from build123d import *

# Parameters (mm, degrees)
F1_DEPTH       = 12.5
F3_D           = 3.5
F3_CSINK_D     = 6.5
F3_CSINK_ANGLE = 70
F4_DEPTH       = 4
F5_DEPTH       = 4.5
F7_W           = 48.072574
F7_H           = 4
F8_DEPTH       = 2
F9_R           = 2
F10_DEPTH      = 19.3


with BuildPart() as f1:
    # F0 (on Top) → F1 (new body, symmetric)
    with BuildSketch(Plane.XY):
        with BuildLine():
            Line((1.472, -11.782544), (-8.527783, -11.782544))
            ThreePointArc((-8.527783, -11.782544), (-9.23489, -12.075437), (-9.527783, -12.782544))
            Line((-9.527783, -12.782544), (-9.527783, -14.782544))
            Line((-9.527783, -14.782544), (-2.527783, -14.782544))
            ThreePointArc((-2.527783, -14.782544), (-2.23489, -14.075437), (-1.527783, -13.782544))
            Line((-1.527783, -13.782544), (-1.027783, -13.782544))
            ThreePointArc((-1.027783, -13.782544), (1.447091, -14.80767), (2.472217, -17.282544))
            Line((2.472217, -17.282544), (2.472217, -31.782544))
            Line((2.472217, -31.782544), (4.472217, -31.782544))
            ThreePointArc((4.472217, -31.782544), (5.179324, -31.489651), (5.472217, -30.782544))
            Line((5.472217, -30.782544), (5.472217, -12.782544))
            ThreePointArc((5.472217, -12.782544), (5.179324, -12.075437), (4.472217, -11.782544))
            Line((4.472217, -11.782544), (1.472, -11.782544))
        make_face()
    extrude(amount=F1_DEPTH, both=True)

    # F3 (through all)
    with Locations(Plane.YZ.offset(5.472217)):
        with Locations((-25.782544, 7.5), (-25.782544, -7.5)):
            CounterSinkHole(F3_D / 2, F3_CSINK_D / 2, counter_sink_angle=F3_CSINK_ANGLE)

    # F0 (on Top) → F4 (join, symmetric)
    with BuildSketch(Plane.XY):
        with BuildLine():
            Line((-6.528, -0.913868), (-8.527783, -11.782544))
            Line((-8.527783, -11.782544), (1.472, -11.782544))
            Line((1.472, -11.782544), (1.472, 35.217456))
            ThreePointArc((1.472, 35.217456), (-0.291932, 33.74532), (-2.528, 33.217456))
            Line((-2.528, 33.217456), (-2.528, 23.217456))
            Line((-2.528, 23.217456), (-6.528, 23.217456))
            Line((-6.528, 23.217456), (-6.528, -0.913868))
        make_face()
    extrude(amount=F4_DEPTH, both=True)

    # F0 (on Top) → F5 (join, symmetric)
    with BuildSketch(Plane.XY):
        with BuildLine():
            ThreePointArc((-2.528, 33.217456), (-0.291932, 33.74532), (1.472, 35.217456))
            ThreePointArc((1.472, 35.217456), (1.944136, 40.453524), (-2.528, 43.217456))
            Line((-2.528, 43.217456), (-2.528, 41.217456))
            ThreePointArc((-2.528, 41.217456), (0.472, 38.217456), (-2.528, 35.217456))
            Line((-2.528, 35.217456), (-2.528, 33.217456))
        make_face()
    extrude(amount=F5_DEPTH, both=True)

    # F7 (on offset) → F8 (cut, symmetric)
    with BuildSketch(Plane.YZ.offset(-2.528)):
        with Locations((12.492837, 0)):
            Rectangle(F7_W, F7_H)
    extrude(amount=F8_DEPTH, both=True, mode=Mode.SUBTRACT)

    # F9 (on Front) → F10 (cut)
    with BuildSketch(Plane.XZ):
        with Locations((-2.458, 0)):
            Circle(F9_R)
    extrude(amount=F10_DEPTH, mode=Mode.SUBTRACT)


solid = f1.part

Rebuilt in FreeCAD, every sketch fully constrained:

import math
import FreeCAD as App
import Part
import Sketcher
Q = App.Units.Quantity


def add_polygon(sketch, points):
    """Adds a closed chain of lines whose ends are joined by coincident constraints."""
    first, n = sketch.GeometryCount, len(points)
    for a, b in zip(points, points[1:] + points[:1]):
        sketch.addGeometry(Part.LineSegment(App.Vector(*a, 0), App.Vector(*b, 0)), False)
    for i in range(n):
        sketch.addConstraint(Sketcher.Constraint("Coincident", first + i, 2, first + (i + 1) % n, 1))

doc = App.newDocument("Part")
params = doc.addObject("Spreadsheet::Sheet", "Params")
for row, (alias, value) in enumerate([
    ("sketch1_radius", "0.999999 mm"),
    ("sketch1_radius2", "3.499999 mm"),
    ("sketch1_width", "7 mm"),
    ("sketch1_width2", "2 mm"),
    ("sketch1_width3", "13 mm"),
    ("pad1_length", "25 mm"),
    ("sketch2_diameter", "3.5 mm"),
    ("hole_diameter", "3.5 mm"),
    ("hole_csink_diameter", "6.5 mm"),
    ("sketch3_radius", "5 mm"),
    ("sketch3_width", "4 mm"),
    ("sketch3_height", "47 mm"),
    ("sketch3_height2", "10 mm"),
    ("pad2_length", "8 mm"),
    ("sketch4_radius", "5 mm"),
    ("sketch4_radius2", "3 mm"),
    ("pad3_length", "9 mm"),
    ("sketch5_height", "4 mm"),
    ("pocket1_length", "4 mm"),
    ("sketch6_diameter", "4 mm"),
    ("pocket2_length", "19.3 mm"),
], start=1):
    params.set(f"A{row}", alias)
    params.set(f"B{row}", "=" + value)
    params.setAlias(f"B{row}", alias)

body = doc.addObject("PartDesign::Body", "Body")

# Sketch on XY plane
sketch1 = doc.addObject("Sketcher::SketchObject", "Sketch")
body.addObject(sketch1)
sketch1.AttachmentSupport = (doc.XY_Plane, [""])
sketch1.MapMode = "FlatFace"
sketch1.addGeometry([
    Part.ArcOfCircle(Part.Circle(App.Vector(-8.5, -12.8, 0), App.Vector(0, 0, 1), 1), math.radians(90), math.radians(180)),  # 0
    Part.LineSegment(App.Vector(-9.5, -12.8, 0), App.Vector(-9.5, -14.8, 0)),  # 1
    Part.LineSegment(App.Vector(-9.5, -14.8, 0), App.Vector(-2.5, -14.8, 0)),  # 2
    Part.ArcOfCircle(Part.Circle(App.Vector(-1.5, -14.8, 0), App.Vector(0, 0, 1), 1), math.radians(90), math.radians(180)),  # 3
    Part.LineSegment(App.Vector(-1.5, -13.8, 0), App.Vector(-1, -13.8, 0)),  # 4
    Part.ArcOfCircle(Part.Circle(App.Vector(-1, -17.3, 0), App.Vector(0, 0, 1), 3.5), math.radians(0), math.radians(90)),  # 5
    Part.LineSegment(App.Vector(2.5, -17.3, 0), App.Vector(2.5, -31.8, 0)),  # 6
    Part.LineSegment(App.Vector(2.5, -31.8, 0), App.Vector(4.5, -31.8, 0)),  # 7
    Part.ArcOfCircle(Part.Circle(App.Vector(4.5, -30.8, 0), App.Vector(0, 0, 1), 1), math.radians(-90), math.radians(0)),  # 8
    Part.LineSegment(App.Vector(5.5, -30.8, 0), App.Vector(5.5, -12.8, 0)),  # 9
    Part.ArcOfCircle(Part.Circle(App.Vector(4.5, -12.8, 0), App.Vector(0, 0, 1), 1), math.radians(0), math.radians(90)),  # 10
    Part.LineSegment(App.Vector(4.5, -11.8, 0), App.Vector(-8.5, -11.8, 0)),  # 11
], False)
sketch1.addConstraint([
    Sketcher.Constraint("Tangent", 0, 2, 1, 1),
    Sketcher.Constraint("Coincident", 1, 2, 2, 1),
    Sketcher.Constraint("Coincident", 2, 2, 3, 2),
    Sketcher.Constraint("Tangent", 3, 1, 4, 1),
    Sketcher.Constraint("Tangent", 4, 2, 5, 2),
    Sketcher.Constraint("Tangent", 5, 1, 6, 1),
    Sketcher.Constraint("Coincident", 6, 2, 7, 1),
    Sketcher.Constraint("Tangent", 7, 2, 8, 1),
    Sketcher.Constraint("Tangent", 8, 2, 9, 1),
    Sketcher.Constraint("Tangent", 9, 2, 10, 1),
    Sketcher.Constraint("Tangent", 10, 2, 11, 1),
    Sketcher.Constraint("Tangent", 11, 2, 0, 1),
    Sketcher.Constraint("Vertical", 1),
    Sketcher.Constraint("Horizontal", 2),
    Sketcher.Constraint("Horizontal", 4),
    Sketcher.Constraint("Vertical", 6),
    Sketcher.Constraint("Horizontal", 7),
    Sketcher.Constraint("Vertical", 9),
    Sketcher.Constraint("Horizontal", 11),
    Sketcher.Constraint("Equal", 0, 3),
    Sketcher.Constraint("Equal", 3, 8),
    Sketcher.Constraint("Equal", 8, 10),
    Sketcher.Constraint("Horizontal", 3, 3, 1, 2),
    Sketcher.Constraint("Equal", 7, 1),
    Sketcher.Constraint("Radius", 0, Q("0.999999 mm")),
    Sketcher.Constraint("Radius", 5, Q("3.499999 mm")),
    Sketcher.Constraint("DistanceX", 2, 1, 2, 2, Q("7 mm")),
    Sketcher.Constraint("DistanceX", 7, 1, 7, 2, Q("2 mm")),
    Sketcher.Constraint("DistanceX", 11, 2, 11, 1, Q("13 mm")),
    Sketcher.Constraint("DistanceY", 9, 1, 9, 2, Q("18 mm")),
    Sketcher.Constraint("DistanceX", 0, 3, -1, 1, Q("8.527784 mm")),
    Sketcher.Constraint("DistanceY", 0, 3, -1, 1, Q("12.782543 mm")),
])
sketch1.setExpression("Constraints[24]", "Params.sketch1_radius")
sketch1.setExpression("Constraints[25]", "Params.sketch1_radius2")
sketch1.setExpression("Constraints[26]", "Params.sketch1_width")
sketch1.setExpression("Constraints[27]", "Params.sketch1_width2")
sketch1.setExpression("Constraints[28]", "Params.sketch1_width3")
pad1 = doc.addObject("PartDesign::Pad", "Pad")
body.addObject(pad1)
pad1.Profile = sketch1
pad1.setExpression("Length", "Params.pad1_length")
pad1.Midplane = True

# Sketch on YZ plane
sketch2 = doc.addObject("Sketcher::SketchObject", "Sketch001")
body.addObject(sketch2)
sketch2.AttachmentSupport = (doc.YZ_Plane, [""])
sketch2.MapMode = "FlatFace"
sketch2.AttachmentOffset = App.Placement(App.Vector(0, 0, 5.472217), App.Rotation())
sketch2.addGeometry([
    Part.Circle(App.Vector(-25.8, 7.5, 0), App.Vector(0, 0, 1), 1.8),
    Part.Circle(App.Vector(-25.8, -7.5, 0), App.Vector(0, 0, 1), 1.8),
], False)
sketch2.addConstraint([
    Sketcher.Constraint("Equal", 0, 1),
    Sketcher.Constraint("Symmetric", 0, 3, 1, 3, -1),
    Sketcher.Constraint("Diameter", 0, Q("3.5 mm")),
    Sketcher.Constraint("DistanceY", 1, 3, 0, 3, Q("15 mm")),
    Sketcher.Constraint("DistanceX", 0, 3, -1, 1, Q("25.782544 mm")),
])
sketch2.setExpression("Constraints[2]", "Params.sketch2_diameter")
doc.recompute()
hole = doc.addObject("PartDesign::Hole", "Hole")
body.addObject(hole)
hole.Profile = sketch2
hole.ThreadType = "None"
hole.setExpression("Diameter", "Params.hole_diameter")
hole.DepthType = "ThroughAll"
hole.HoleCutType = "Countersink"
hole.setExpression("HoleCutDiameter", "Params.hole_csink_diameter")
hole.HoleCutCountersinkAngle = 70

# Sketch on XY plane
sketch3 = doc.addObject("Sketcher::SketchObject", "Sketch002")
body.addObject(sketch3)
sketch3.AttachmentSupport = (doc.XY_Plane, [""])
sketch3.MapMode = "FlatFace"
sketch3.addGeometry([
    Part.LineSegment(App.Vector(-6.5, -0.9, 0), App.Vector(-8.5, -11.8, 0)),  # 0
    Part.LineSegment(App.Vector(-8.5, -11.8, 0), App.Vector(1.5, -11.8, 0)),  # 1
    Part.LineSegment(App.Vector(1.5, -11.8, 0), App.Vector(1.5, 35.2, 0)),  # 2
    Part.ArcOfCircle(Part.Circle(App.Vector(-2.5, 38.2, 0), App.Vector(0, 0, 1), 5), math.radians(-90), math.radians(-37)),  # 3
    Part.LineSegment(App.Vector(-2.5, 33.2, 0), App.Vector(-2.5, 23.2, 0)),  # 4
    Part.LineSegment(App.Vector(-2.5, 23.2, 0), App.Vector(-6.5, 23.2, 0)),  # 5
    Part.LineSegment(App.Vector(-6.5, 23.2, 0), App.Vector(-6.5, -0.9, 0)),  # 6
], False)
sketch3.addConstraint([
    Sketcher.Constraint("Coincident", 0, 2, 1, 1),
    Sketcher.Constraint("Coincident", 1, 2, 2, 1),
    Sketcher.Constraint("Coincident", 2, 2, 3, 2),
    Sketcher.Constraint("Coincident", 3, 1, 4, 1),
    Sketcher.Constraint("Coincident", 4, 2, 5, 1),
    Sketcher.Constraint("Coincident", 5, 2, 6, 1),
    Sketcher.Constraint("Coincident", 6, 2, 0, 1),
    Sketcher.Constraint("Horizontal", 1),
    Sketcher.Constraint("Vertical", 2),
    Sketcher.Constraint("Vertical", 4),
    Sketcher.Constraint("Horizontal", 5),
    Sketcher.Constraint("Vertical", 6),
    Sketcher.Constraint("Radius", 3, Q("5 mm")),
    Sketcher.Constraint("DistanceX", 5, 2, 5, 1, Q("4 mm")),
    Sketcher.Constraint("DistanceY", 2, 1, 2, 2, Q("47 mm")),
    Sketcher.Constraint("DistanceY", 4, 2, 4, 1, Q("10 mm")),
    Sketcher.Constraint("DistanceY", 0, 2, 3, 3, Q("50 mm")),
    Sketcher.Constraint("DistanceX", 3, 1, 2, 2, Q("4 mm")),
    Sketcher.Constraint("DistanceX", 3, 3, -1, 1, Q("2.528 mm")),
    Sketcher.Constraint("Distance", 0, Q("11.05112 mm")),
    Sketcher.Constraint("DistanceX", 1, 1, 1, 2, Q("9.999783 mm")),
    Sketcher.Constraint("DistanceY", 6, 2, -1, 1, Q("0.913868 mm")),
])
sketch3.setExpression("Constraints[12]", "Params.sketch3_radius")
sketch3.setExpression("Constraints[13]", "Params.sketch3_width")
sketch3.setExpression("Constraints[14]", "Params.sketch3_height")
sketch3.setExpression("Constraints[15]", "Params.sketch3_height2")
pad2 = doc.addObject("PartDesign::Pad", "Pad001")
body.addObject(pad2)
pad2.Profile = sketch3
pad2.setExpression("Length", "Params.pad2_length")
pad2.Midplane = True

# Sketch on XY plane
sketch4 = doc.addObject("Sketcher::SketchObject", "Sketch003")
body.addObject(sketch4)
sketch4.AttachmentSupport = (doc.XY_Plane, [""])
sketch4.MapMode = "FlatFace"
sketch4.addGeometry([
    Part.ArcOfCircle(Part.Circle(App.Vector(-2.5, 38.2, 0), App.Vector(0, 0, 1), 5), math.radians(-90), math.radians(-37)),  # 0
    Part.ArcOfCircle(Part.Circle(App.Vector(-2.5, 38.2, 0), App.Vector(0, 0, 1), 5), math.radians(-37), math.radians(90)),  # 1
    Part.LineSegment(App.Vector(-2.5, 43.2, 0), App.Vector(-2.5, 41.2, 0)),  # 2
    Part.ArcOfCircle(Part.Circle(App.Vector(-2.5, 38.2, 0), App.Vector(0, 0, 1), 3), math.radians(-90), math.radians(90)),  # 3
    Part.LineSegment(App.Vector(-2.5, 35.2, 0), App.Vector(-2.5, 33.2, 0)),  # 4
], False)
sketch4.addConstraint([
    Sketcher.Constraint("Tangent", 0, 2, 1, 1),
    Sketcher.Constraint("Coincident", 1, 2, 2, 1),
    Sketcher.Constraint("Coincident", 2, 2, 3, 2),
    Sketcher.Constraint("Coincident", 3, 1, 4, 1),
    Sketcher.Constraint("Coincident", 4, 2, 0, 1),
    Sketcher.Constraint("Vertical", 2),
    Sketcher.Constraint("Vertical", 4),
    Sketcher.Constraint("Coincident", 3, 3, 0, 3),
    Sketcher.Constraint("Equal", 0, 1),
    Sketcher.Constraint("Horizontal", 0, 2, 3, 1),
    Sketcher.Constraint("Vertical", 3, 3, 1, 2),
    Sketcher.Constraint("Vertical", 2, 2, 3, 1),
    Sketcher.Constraint("Radius", 0, Q("5 mm")),
    Sketcher.Constraint("Radius", 3, Q("3 mm")),
    Sketcher.Constraint("DistanceX", 0, 3, -1, 1, Q("2.528 mm")),
    Sketcher.Constraint("DistanceY", -1, 1, 0, 3, Q("38.217456 mm")),
])
sketch4.setExpression("Constraints[12]", "Params.sketch4_radius")
sketch4.setExpression("Constraints[13]", "Params.sketch4_radius2")
pad3 = doc.addObject("PartDesign::Pad", "Pad002")
body.addObject(pad3)
pad3.Profile = sketch4
pad3.setExpression("Length", "Params.pad3_length")
pad3.Midplane = True

# Sketch on YZ plane
sketch5 = doc.addObject("Sketcher::SketchObject", "Sketch004")
body.addObject(sketch5)
sketch5.AttachmentSupport = (doc.YZ_Plane, [""])
sketch5.MapMode = "FlatFace"
sketch5.AttachmentOffset = App.Placement(App.Vector(0, 0, -2.528), App.Rotation())
add_polygon(sketch5, [(-11.5, 2), (-11.5, -2), (36.5, -2), (36.5, 2)])  # lines 0-3
sketch5.addConstraint([
    Sketcher.Constraint("Vertical", 0),
    Sketcher.Constraint("Horizontal", 1),
    Sketcher.Constraint("Vertical", 2),
    Sketcher.Constraint("Horizontal", 3),
    Sketcher.Constraint("DistanceY", 0, 2, 0, 1, Q("4 mm")),
    Sketcher.Constraint("DistanceY", 0, 2, -1, 1, Q("2 mm")),
    Sketcher.Constraint("DistanceX", 1, 1, 1, 2, Q("48.072574 mm")),
    Sketcher.Constraint("DistanceX", 0, 2, -1, 1, Q("11.54345 mm")),
])
sketch5.setExpression("Constraints[8]", "Params.sketch5_height")
pocket1 = doc.addObject("PartDesign::Pocket", "Pocket")
body.addObject(pocket1)
pocket1.Profile = sketch5
pocket1.setExpression("Length", "Params.pocket1_length")
pocket1.Midplane = True

# Sketch on XZ plane
sketch6 = doc.addObject("Sketcher::SketchObject", "Sketch005")
body.addObject(sketch6)
sketch6.AttachmentSupport = (doc.XZ_Plane, [""])
sketch6.MapMode = "FlatFace"
sketch6.addGeometry(Part.Circle(App.Vector(-2.5, 0, 0), App.Vector(0, 0, 1), 2), False)
sketch6.addConstraint([
    Sketcher.Constraint("PointOnObject", 0, 3, -1),
    Sketcher.Constraint("Diameter", 0, Q("4 mm")),
    Sketcher.Constraint("DistanceX", 0, 3, -1, 1, Q("2.458 mm")),
])
sketch6.setExpression("Constraints[1]", "Params.sketch6_diameter")
pocket2 = doc.addObject("PartDesign::Pocket", "Pocket001")
body.addObject(pocket2)
pocket2.Profile = sketch6
pocket2.setExpression("Length", "Params.pocket2_length")
pocket2.Reversed = True

doc.recompute()
